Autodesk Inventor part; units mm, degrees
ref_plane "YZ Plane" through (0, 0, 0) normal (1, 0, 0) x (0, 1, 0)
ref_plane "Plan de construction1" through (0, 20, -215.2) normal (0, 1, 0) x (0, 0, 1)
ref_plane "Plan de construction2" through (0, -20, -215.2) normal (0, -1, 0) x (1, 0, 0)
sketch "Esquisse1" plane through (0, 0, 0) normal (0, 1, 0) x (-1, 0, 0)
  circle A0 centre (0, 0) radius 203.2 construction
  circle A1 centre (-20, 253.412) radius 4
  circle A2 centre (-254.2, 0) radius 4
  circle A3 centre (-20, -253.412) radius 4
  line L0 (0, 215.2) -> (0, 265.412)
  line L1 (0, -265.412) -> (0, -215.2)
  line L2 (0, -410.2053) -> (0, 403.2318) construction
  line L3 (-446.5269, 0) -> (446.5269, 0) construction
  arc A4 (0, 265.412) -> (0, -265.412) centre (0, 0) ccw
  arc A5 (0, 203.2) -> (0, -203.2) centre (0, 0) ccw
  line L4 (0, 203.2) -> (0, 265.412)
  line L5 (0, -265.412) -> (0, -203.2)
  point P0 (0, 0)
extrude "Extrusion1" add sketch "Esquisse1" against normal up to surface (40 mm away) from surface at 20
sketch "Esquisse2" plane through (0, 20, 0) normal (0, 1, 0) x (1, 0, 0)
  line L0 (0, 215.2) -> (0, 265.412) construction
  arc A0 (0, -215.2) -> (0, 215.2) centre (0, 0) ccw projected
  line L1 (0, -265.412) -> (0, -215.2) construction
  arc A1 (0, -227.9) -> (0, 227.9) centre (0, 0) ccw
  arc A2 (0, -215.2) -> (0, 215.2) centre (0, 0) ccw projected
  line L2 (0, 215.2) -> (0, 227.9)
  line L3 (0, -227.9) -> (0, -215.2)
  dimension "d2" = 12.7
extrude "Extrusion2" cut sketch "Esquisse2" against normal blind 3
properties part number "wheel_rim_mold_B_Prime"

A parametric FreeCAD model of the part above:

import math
import FreeCAD as App
import Part
import Sketcher
from FreeCAD import Vector

doc = App.newDocument("Part")
body = doc.addObject("PartDesign::Body", "Body")

# Sketch on XZ plane
sketch1 = body.newObject("Sketcher::SketchObject", "Sketch")
sketch1.AttachmentSupport = (doc.getObject("XZ_Plane"), [""])
sketch1.MapMode = "FlatFace"
sketch1.AttachmentOffset = App.Placement(Vector(0, 0, -20), App.Rotation())
sketch1.addGeometry(Part.LineSegment(Vector(0, 203.2, 0), Vector(0, 265.412, 0)), False)
sketch1.addGeometry(Part.ArcOfCircle(Part.Circle(Vector(0, 0, 0), Vector(0, 0, 1), 265.412), math.radians(-90), math.radians(90)), False)
sketch1.addGeometry(Part.LineSegment(Vector(0, -265.412, 0), Vector(0, -203.2, 0)), False)
sketch1.addGeometry(Part.ArcOfCircle(Part.Circle(Vector(0, 0, 0), Vector(0, 0, 1), 203.2), math.radians(-90), math.radians(90)), False)
sketch1.addGeometry(Part.Circle(Vector(20, -253.412, 0), Vector(0, 0, 1), 4), False)
sketch1.addGeometry(Part.Circle(Vector(254.2, 0, 0), Vector(0, 0, 1), 4), False)
sketch1.addGeometry(Part.Circle(Vector(20, 253.412, 0), Vector(0, 0, 1), 4), False)
sketch1.addConstraint(Sketcher.Constraint("Coincident", 0, 2, 1, 2))
sketch1.addConstraint(Sketcher.Constraint("Coincident", 1, 1, 2, 1))
sketch1.addConstraint(Sketcher.Constraint("Coincident", 2, 2, 3, 1))
sketch1.addConstraint(Sketcher.Constraint("Coincident", 3, 2, 0, 1))
sketch1.addConstraint(Sketcher.Constraint("Vertical", 0))
sketch1.addConstraint(Sketcher.Constraint("Vertical", 2))
sketch1.addConstraint(Sketcher.Constraint("Coincident", 1, 3, -1, 1))
sketch1.addConstraint(Sketcher.Constraint("Coincident", 3, 3, -1, 1))
sketch1.addConstraint(Sketcher.Constraint("Equal", 4, 5))
sketch1.addConstraint(Sketcher.Constraint("Equal", 5, 6))
sketch1.addConstraint(Sketcher.Constraint("Symmetric", 4, 3, 6, 3, -1))
sketch1.addConstraint(Sketcher.Constraint("PointOnObject", 5, 3, -1))
sketch1.addConstraint(Sketcher.Constraint("PointOnObject", 0, 2, -2))
sketch1.addConstraint(Sketcher.Constraint("PointOnObject", 1, 1, -2))
sketch1.addConstraint(Sketcher.Constraint("Diameter", 4, 8.0))
sketch1.addConstraint(Sketcher.Constraint("Radius", 3, 203.2))
sketch1.addConstraint(Sketcher.Constraint("DistanceX", -1, 1, 4, 3, 20.0))
sketch1.addConstraint(Sketcher.Constraint("Radius", 1, 265.412))
sketch1.addConstraint(Sketcher.Constraint("DistanceY", 6, 3, 0, 2, 12.0))
sketch1.addConstraint(Sketcher.Constraint("DistanceX", -1, 1, 5, 3, 254.2))
pad1 = body.newObject("PartDesign::Pad", "Pad")
pad1.Profile = sketch1
pad1.Length = 40

# Sketch on XZ plane
sketch2 = body.newObject("Sketcher::SketchObject", "Sketch001")
sketch2.AttachmentSupport = (doc.getObject("XZ_Plane"), [""])
sketch2.MapMode = "FlatFace"
sketch2.AttachmentOffset = App.Placement(Vector(0, 0, -20), App.Rotation())
sketch2.addGeometry(Part.ArcOfCircle(Part.Circle(Vector(0, 0, 0), Vector(0, 0, 1), 215.2), math.radians(-90), math.radians(90)), False)
sketch2.addGeometry(Part.LineSegment(Vector(0, 215.2, 0), Vector(0, 227.9, 0)), False)
sketch2.addGeometry(Part.ArcOfCircle(Part.Circle(Vector(0, 0, 0), Vector(0, 0, 1), 227.9), math.radians(-90), math.radians(90)), False)
sketch2.addGeometry(Part.LineSegment(Vector(0, -227.9, 0), Vector(0, -215.2, 0)), False)
sketch2.addConstraint(Sketcher.Constraint("Coincident", 0, 2, 1, 1))
sketch2.addConstraint(Sketcher.Constraint("Coincident", 1, 2, 2, 2))
sketch2.addConstraint(Sketcher.Constraint("Coincident", 2, 1, 3, 1))
sketch2.addConstraint(Sketcher.Constraint("Coincident", 3, 2, 0, 1))
sketch2.addConstraint(Sketcher.Constraint("Vertical", 1))
sketch2.addConstraint(Sketcher.Constraint("Vertical", 3))
sketch2.addConstraint(Sketcher.Constraint("Coincident", 0, 3, -1, 1))
sketch2.addConstraint(Sketcher.Constraint("Coincident", 2, 3, -1, 1))
sketch2.addConstraint(Sketcher.Constraint("PointOnObject", 0, 2, -2))
sketch2.addConstraint(Sketcher.Constraint("PointOnObject", 2, 1, -2))
sketch2.addConstraint(Sketcher.Constraint("DistanceY", 1, 1, 1, 2, 12.7))
sketch2.addConstraint(Sketcher.Constraint("Radius", 0, 215.2))
pocket1 = body.newObject("PartDesign::Pocket", "Pocket")
pocket1.Profile = sketch2
pocket1.Length = 3
pocket1.Reversed = True

doc.recompute()
